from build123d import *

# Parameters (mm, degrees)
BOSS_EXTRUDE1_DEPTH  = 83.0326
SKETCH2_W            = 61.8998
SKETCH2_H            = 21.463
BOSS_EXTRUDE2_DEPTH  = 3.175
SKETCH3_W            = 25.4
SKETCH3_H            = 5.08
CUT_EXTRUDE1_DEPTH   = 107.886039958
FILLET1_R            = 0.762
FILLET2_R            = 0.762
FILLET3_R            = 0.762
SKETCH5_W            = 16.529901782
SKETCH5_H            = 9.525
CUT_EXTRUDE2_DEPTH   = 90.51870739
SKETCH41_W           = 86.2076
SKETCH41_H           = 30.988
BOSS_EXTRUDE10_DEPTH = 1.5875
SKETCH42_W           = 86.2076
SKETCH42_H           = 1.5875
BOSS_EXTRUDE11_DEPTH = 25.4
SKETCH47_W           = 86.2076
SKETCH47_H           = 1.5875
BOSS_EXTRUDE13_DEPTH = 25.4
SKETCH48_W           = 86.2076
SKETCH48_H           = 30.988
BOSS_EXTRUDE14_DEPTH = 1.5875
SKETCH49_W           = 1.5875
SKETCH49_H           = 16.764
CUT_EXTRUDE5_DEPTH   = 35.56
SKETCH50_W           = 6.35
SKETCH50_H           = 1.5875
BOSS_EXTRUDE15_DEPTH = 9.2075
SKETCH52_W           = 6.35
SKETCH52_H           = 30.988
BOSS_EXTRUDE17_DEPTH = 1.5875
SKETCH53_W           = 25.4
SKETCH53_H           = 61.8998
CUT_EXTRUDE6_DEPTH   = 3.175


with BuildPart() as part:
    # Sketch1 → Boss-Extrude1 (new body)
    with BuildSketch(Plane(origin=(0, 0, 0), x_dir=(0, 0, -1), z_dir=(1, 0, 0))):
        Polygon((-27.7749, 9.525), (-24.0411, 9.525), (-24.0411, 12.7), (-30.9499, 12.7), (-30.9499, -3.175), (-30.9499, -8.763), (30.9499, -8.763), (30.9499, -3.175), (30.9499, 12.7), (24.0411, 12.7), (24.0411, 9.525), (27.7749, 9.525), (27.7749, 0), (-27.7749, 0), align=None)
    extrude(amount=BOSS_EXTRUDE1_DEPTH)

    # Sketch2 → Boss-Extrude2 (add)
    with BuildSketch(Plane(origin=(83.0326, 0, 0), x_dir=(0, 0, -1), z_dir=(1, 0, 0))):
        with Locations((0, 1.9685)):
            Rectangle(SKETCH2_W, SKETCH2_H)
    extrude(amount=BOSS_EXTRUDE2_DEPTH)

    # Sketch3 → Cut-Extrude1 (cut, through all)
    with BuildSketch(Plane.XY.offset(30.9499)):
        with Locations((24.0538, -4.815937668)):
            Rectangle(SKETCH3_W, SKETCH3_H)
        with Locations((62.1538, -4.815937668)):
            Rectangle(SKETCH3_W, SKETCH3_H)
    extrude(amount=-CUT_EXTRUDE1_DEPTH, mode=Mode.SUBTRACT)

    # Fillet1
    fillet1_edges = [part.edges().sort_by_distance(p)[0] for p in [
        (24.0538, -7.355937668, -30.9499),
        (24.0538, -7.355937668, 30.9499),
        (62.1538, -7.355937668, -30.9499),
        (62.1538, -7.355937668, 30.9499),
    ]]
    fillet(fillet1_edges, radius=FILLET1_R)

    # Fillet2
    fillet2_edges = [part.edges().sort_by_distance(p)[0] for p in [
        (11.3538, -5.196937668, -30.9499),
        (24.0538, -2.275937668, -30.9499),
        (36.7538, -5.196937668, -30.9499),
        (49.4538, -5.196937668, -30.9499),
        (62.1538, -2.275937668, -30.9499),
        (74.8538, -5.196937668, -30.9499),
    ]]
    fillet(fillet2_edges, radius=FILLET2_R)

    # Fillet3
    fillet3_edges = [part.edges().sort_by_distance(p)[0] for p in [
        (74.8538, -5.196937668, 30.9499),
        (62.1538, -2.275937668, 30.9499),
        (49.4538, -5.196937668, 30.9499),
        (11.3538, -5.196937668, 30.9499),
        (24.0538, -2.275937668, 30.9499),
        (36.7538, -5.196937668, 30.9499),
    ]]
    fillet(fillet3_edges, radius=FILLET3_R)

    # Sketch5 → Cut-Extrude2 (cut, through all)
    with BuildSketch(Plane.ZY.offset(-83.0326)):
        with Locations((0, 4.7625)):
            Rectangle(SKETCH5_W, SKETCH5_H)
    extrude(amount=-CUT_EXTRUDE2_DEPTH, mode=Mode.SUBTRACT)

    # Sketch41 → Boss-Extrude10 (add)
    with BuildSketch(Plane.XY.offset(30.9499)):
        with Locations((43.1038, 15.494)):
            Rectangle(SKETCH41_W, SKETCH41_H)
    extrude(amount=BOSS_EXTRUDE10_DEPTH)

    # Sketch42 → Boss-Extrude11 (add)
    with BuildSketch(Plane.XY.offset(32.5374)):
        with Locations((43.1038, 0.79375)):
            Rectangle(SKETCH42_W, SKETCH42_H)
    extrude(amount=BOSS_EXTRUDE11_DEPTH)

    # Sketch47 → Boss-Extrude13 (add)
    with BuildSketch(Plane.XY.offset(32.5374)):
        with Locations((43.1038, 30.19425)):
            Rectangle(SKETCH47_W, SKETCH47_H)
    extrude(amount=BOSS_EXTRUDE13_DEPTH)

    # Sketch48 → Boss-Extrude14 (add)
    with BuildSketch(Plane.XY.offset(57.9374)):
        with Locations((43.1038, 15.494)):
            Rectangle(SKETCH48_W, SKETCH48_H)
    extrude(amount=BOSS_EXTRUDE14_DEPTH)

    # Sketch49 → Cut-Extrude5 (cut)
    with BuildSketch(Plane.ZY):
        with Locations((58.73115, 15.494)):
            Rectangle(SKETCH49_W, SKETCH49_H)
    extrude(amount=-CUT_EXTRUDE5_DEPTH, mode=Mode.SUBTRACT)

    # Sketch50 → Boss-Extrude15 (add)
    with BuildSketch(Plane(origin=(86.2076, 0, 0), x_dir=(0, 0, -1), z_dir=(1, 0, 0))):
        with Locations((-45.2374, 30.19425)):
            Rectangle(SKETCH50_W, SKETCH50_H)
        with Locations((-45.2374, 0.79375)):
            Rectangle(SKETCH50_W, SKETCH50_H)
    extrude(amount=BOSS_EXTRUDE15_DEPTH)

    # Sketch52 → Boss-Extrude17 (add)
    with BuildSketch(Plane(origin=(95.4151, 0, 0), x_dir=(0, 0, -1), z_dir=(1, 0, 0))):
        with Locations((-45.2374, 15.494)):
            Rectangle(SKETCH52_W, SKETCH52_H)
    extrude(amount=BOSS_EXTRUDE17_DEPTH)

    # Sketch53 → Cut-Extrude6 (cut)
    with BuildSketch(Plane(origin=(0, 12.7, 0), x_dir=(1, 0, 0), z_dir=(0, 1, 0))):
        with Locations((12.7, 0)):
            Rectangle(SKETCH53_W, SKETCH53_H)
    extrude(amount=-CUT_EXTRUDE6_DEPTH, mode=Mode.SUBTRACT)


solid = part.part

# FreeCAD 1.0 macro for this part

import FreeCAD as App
import Part
import Sketcher

V = App.Vector
Q = App.Units.Quantity


def edges_at(feature, points):
    """Names of the edges that pass closest to the given points."""
    edges = feature.Shape.Edges
    near = lambda p: min(range(len(edges)), key=lambda i: edges[i].distToShape(Part.Vertex(*p))[0])
    return sorted({f"Edge{near(p) + 1}" for p in points})


def add_polygon(sketch, points):
    """Adds a closed chain of lines whose ends are joined by coincident constraints."""
    first, n = sketch.GeometryCount, len(points)
    for a, b in zip(points, points[1:] + points[:1]):
        sketch.addGeometry(Part.LineSegment(App.Vector(*a, 0), App.Vector(*b, 0)), False)
    for i in range(n):
        sketch.addConstraint(Sketcher.Constraint("Coincident", first + i, 2, first + (i + 1) % n, 1))

doc = App.newDocument("Part")
body = doc.addObject("PartDesign::Body", "Body")

# Sketch on YZ plane
sketch1 = doc.addObject("Sketcher::SketchObject", "Sketch")
body.addObject(sketch1)
sketch1.AttachmentSupport = (doc.YZ_Plane, [""])
sketch1.MapMode = "FlatFace"
add_polygon(sketch1, [(9.5, 27.8), (9.5, 24), (12.7, 24), (12.7, 30.9), (-8.8, 30.9), (-8.8, -30.9), (12.7, -30.9), (12.7, -24), (9.5, -24), (9.5, -27.8), (0, -27.8), (0, 27.8)])  # lines 0-11
sketch1.addConstraint(Sketcher.Constraint("Vertical", 0))
sketch1.addConstraint(Sketcher.Constraint("Horizontal", 1))
sketch1.addConstraint(Sketcher.Constraint("Vertical", 2))
sketch1.addConstraint(Sketcher.Constraint("Horizontal", 3))
sketch1.addConstraint(Sketcher.Constraint("Vertical", 4))
sketch1.addConstraint(Sketcher.Constraint("Horizontal", 5))
sketch1.addConstraint(Sketcher.Constraint("Vertical", 6))
sketch1.addConstraint(Sketcher.Constraint("Horizontal", 7))
sketch1.addConstraint(Sketcher.Constraint("Vertical", 8))
sketch1.addConstraint(Sketcher.Constraint("Horizontal", 9))
sketch1.addConstraint(Sketcher.Constraint("Vertical", 10))
sketch1.addConstraint(Sketcher.Constraint("Horizontal", 11))
sketch1.addConstraint(Sketcher.Constraint("Symmetric", 9, 2, 10, 2, -1, 1))
sketch1.addConstraint(Sketcher.Constraint("Symmetric", 2, 2, 5, 2, -1))
sketch1.addConstraint(Sketcher.Constraint("Symmetric", 0, 2, 7, 2, -1))
sketch1.addConstraint(Sketcher.Constraint("DistanceX", -1, 1, 1, 2, Q("0.5 in")))
sketch1.addConstraint(Sketcher.Constraint("DistanceX", 1, 1, 1, 2, Q("0.125 in")))
sketch1.addConstraint(Sketcher.Constraint("DistanceX", 3, 2, 3, 1, Q("0.845 in")))
sketch1.addConstraint(Sketcher.Constraint("DistanceY", 0, 2, 0, 1, Q("0.147 in")))
sketch1.addConstraint(Sketcher.Constraint("DistanceY", 2, 1, 2, 2, Q("0.272 in")))
sketch1.addConstraint(Sketcher.Constraint("DistanceY", 4, 2, 4, 1, Q("2.437 in")))
pad1 = doc.addObject("PartDesign::Pad", "Pad")
body.addObject(pad1)
pad1.Profile = sketch1
pad1.Length = Q("3.269 in")

# Sketch on YZ plane
sketch2 = doc.addObject("Sketcher::SketchObject", "Sketch001")
body.addObject(sketch2)
sketch2.AttachmentSupport = (doc.YZ_Plane, [""])
sketch2.MapMode = "FlatFace"
sketch2.AttachmentOffset = App.Placement(V(0, 0, 3.269 * 25.4), App.Rotation())
add_polygon(sketch2, [(13, 31), (-9, 31), (-9, -31), (13, -31)])  # lines 0-3
sketch2.addConstraint(Sketcher.Constraint("Horizontal", 0))
sketch2.addConstraint(Sketcher.Constraint("Vertical", 1))
sketch2.addConstraint(Sketcher.Constraint("Horizontal", 2))
sketch2.addConstraint(Sketcher.Constraint("Vertical", 3))
sketch2.addConstraint(Sketcher.Constraint("DistanceX", -1, 1, 2, 2, Q("0.5 in")))
sketch2.addConstraint(Sketcher.Constraint("DistanceX", 0, 2, 0, 1, Q("0.845 in")))
sketch2.addConstraint(Sketcher.Constraint("DistanceY", 1, 2, 1, 1, Q("2.437 in")))
sketch2.addConstraint(Sketcher.Constraint("DistanceY", -1, 1, 0, 2, Q("1.2185 in")))
pad2 = doc.addObject("PartDesign::Pad", "Pad001")
body.addObject(pad2)
pad2.Profile = sketch2
pad2.Length = Q("0.125 in")

# Sketch on XY plane
sketch3 = doc.addObject("Sketcher::SketchObject", "Sketch002")
body.addObject(sketch3)
sketch3.AttachmentSupport = (doc.XY_Plane, [""])
sketch3.MapMode = "FlatFace"
sketch3.AttachmentOffset = App.Placement(V(0, 0, 1.2185 * 25.4), App.Rotation())
add_polygon(sketch3, [(11, -2), (11, -7), (37, -7), (37, -2)])  # lines 0-3
add_polygon(sketch3, [(49, -2), (49, -7), (75, -7), (75, -2)])  # lines 4-7
sketch3.addConstraint(Sketcher.Constraint("Vertical", 0))
sketch3.addConstraint(Sketcher.Constraint("Horizontal", 1))
sketch3.addConstraint(Sketcher.Constraint("Vertical", 2))
sketch3.addConstraint(Sketcher.Constraint("Horizontal", 3))
sketch3.addConstraint(Sketcher.Constraint("Vertical", 4))
sketch3.addConstraint(Sketcher.Constraint("Horizontal", 5))
sketch3.addConstraint(Sketcher.Constraint("Vertical", 6))
sketch3.addConstraint(Sketcher.Constraint("Horizontal", 7))
sketch3.addConstraint(Sketcher.Constraint("Horizontal", 1, 2, 4, 2))
sketch3.addConstraint(Sketcher.Constraint("Horizontal", 3, 2, 6, 2))
sketch3.addConstraint(Sketcher.Constraint("Equal", 3, 5))
sketch3.addConstraint(Sketcher.Constraint("DistanceX", 1, 1, 1, 2, Q("1 in")))
sketch3.addConstraint(Sketcher.Constraint("DistanceY", 0, 2, 0, 1, Q("0.2 in")))
sketch3.addConstraint(Sketcher.Constraint("DistanceX", 1, 2, 4, 2, Q("0.5 in")))
sketch3.addConstraint(Sketcher.Constraint("DistanceX", -1, 1, 0, 2, Q("0.447 in")))
sketch3.addConstraint(Sketcher.Constraint("DistanceY", 0, 2, -1, 1, 7.355938))
pocket1 = doc.addObject("PartDesign::Pocket", "Pocket")
body.addObject(pocket1)
pocket1.Profile = sketch3
pocket1.Type = "ThroughAll"
doc.recompute()

fillet = doc.addObject("PartDesign::Fillet", "Fillet")
body.addObject(fillet)
fillet.Base = (pocket1, edges_at(pocket1, [
    (24.054, -7.356, -30.95),
    (24.054, -7.356, 30.95),
    (62.154, -7.356, -30.95),
    (62.154, -7.356, 30.95),
]))
fillet.Radius = Q("0.03 in")
doc.recompute()

fillet2 = doc.addObject("PartDesign::Fillet", "Fillet001")
body.addObject(fillet2)
fillet2.Base = (fillet, edges_at(fillet, [
    (11.354, -5.197, -30.95),
    (24.054, -2.276, -30.95),
    (36.754, -5.197, -30.95),
    (49.454, -5.197, -30.95),
    (62.154, -2.276, -30.95),
    (74.854, -5.197, -30.95),
]))
fillet2.Radius = Q("0.03 in")
doc.recompute()

fillet3 = doc.addObject("PartDesign::Fillet", "Fillet002")
body.addObject(fillet3)
fillet3.Base = (fillet2, edges_at(fillet2, [
    (74.854, -5.197, 30.95),
    (62.154, -2.276, 30.95),
    (49.454, -5.197, 30.95),
    (11.354, -5.197, 30.95),
    (24.054, -2.276, 30.95),
    (36.754, -5.197, 30.95),
]))
fillet3.Radius = Q("0.03 in")

# Sketch on YZ plane
sketch4 = doc.addObject("Sketcher::SketchObject", "Sketch003")
body.addObject(sketch4)
sketch4.AttachmentSupport = (doc.YZ_Plane, [""])
sketch4.MapMode = "FlatFace"
sketch4.AttachmentOffset = App.Placement(V(0, 0, 3.269 * 25.4), App.Rotation())
add_polygon(sketch4, [(10, -8), (0, -8), (0, 8), (10, 8)])  # lines 0-3
sketch4.addConstraint(Sketcher.Constraint("Horizontal", 0))
sketch4.addConstraint(Sketcher.Constraint("Vertical", 1))
sketch4.addConstraint(Sketcher.Constraint("Horizontal", 2))
sketch4.addConstraint(Sketcher.Constraint("Vertical", 3))
sketch4.addConstraint(Sketcher.Constraint("Symmetric", 0, 2, 1, 2, -1, 1))
sketch4.addConstraint(Sketcher.Constraint("DistanceX", 0, 2, 0, 1, Q("0.375 in")))
sketch4.addConstraint(Sketcher.Constraint("DistanceY", 1, 1, 1, 2, 16.529902))
pocket2 = doc.addObject("PartDesign::Pocket", "Pocket001")
body.addObject(pocket2)
pocket2.Profile = sketch4
pocket2.Type = "ThroughAll"
pocket2.Reversed = True

# Sketch on XY plane
sketch5 = doc.addObject("Sketcher::SketchObject", "Sketch004")
body.addObject(sketch5)
sketch5.AttachmentSupport = (doc.XY_Plane, [""])
sketch5.MapMode = "FlatFace"
sketch5.AttachmentOffset = App.Placement(V(0, 0, 1.2185 * 25.4), App.Rotation())
add_polygon(sketch5, [(0, 31), (0, 0), (86, 0), (86, 31)])  # lines 0-3
sketch5.addConstraint(Sketcher.Constraint("Vertical", 0))
sketch5.addConstraint(Sketcher.Constraint("Horizontal", 1))
sketch5.addConstraint(Sketcher.Constraint("Vertical", 2))
sketch5.addConstraint(Sketcher.Constraint("Horizontal", 3))
sketch5.addConstraint(Sketcher.Constraint("Coincident", 0, 2, -1, 1))
sketch5.addConstraint(Sketcher.Constraint("DistanceY", 0, 2, 0, 1, Q("1.22 in")))
sketch5.addConstraint(Sketcher.Constraint("DistanceX", 1, 1, 1, 2, Q("3.394 in")))
pad3 = doc.addObject("PartDesign::Pad", "Pad002")
body.addObject(pad3)
pad3.Profile = sketch5
pad3.Length = Q("0.0625 in")

# Sketch on XY plane
sketch6 = doc.addObject("Sketcher::SketchObject", "Sketch005")
body.addObject(sketch6)
sketch6.AttachmentSupport = (doc.XY_Plane, [""])
sketch6.MapMode = "FlatFace"
sketch6.AttachmentOffset = App.Placement(V(0, 0, 1.281 * 25.4), App.Rotation())
add_polygon(sketch6, [(0, 1.6), (0, 0), (86.2, 0), (86.2, 1.6)])  # lines 0-3
sketch6.addConstraint(Sketcher.Constraint("Vertical", 0))
sketch6.addConstraint(Sketcher.Constraint("Horizontal", 1))
sketch6.addConstraint(Sketcher.Constraint("Vertical", 2))
sketch6.addConstraint(Sketcher.Constraint("Horizontal", 3))
sketch6.addConstraint(Sketcher.Constraint("Coincident", 0, 2, -1, 1))
sketch6.addConstraint(Sketcher.Constraint("DistanceX", 1, 1, 1, 2, Q("3.394 in")))
sketch6.addConstraint(Sketcher.Constraint("DistanceY", 0, 2, 0, 1, Q("0.0625 in")))
pad4 = doc.addObject("PartDesign::Pad", "Pad003")
body.addObject(pad4)
pad4.Profile = sketch6
pad4.Length = Q("1 in")

# Sketch on XY plane
sketch7 = doc.addObject("Sketcher::SketchObject", "Sketch006")
body.addObject(sketch7)
sketch7.AttachmentSupport = (doc.XY_Plane, [""])
sketch7.MapMode = "FlatFace"
sketch7.AttachmentOffset = App.Placement(V(0, 0, 1.281 * 25.4), App.Rotation())
add_polygon(sketch7, [(0, 31), (0, 29.4), (86.2, 29.4), (86.2, 31)])  # lines 0-3
sketch7.addConstraint(Sketcher.Constraint("Vertical", 0))
sketch7.addConstraint(Sketcher.Constraint("Horizontal", 1))
sketch7.addConstraint(Sketcher.Constraint("Vertical", 2))
sketch7.addConstraint(Sketcher.Constraint("Horizontal", 3))
sketch7.addConstraint(Sketcher.Constraint("PointOnObject", 0, 2, -2))
sketch7.addConstraint(Sketcher.Constraint("DistanceX", 1, 1, 1, 2, Q("3.394 in")))
sketch7.addConstraint(Sketcher.Constraint("DistanceY", 0, 2, 0, 1, Q("0.0625 in")))
sketch7.addConstraint(Sketcher.Constraint("DistanceY", -1, 1, 2, 2, Q("1.22 in")))
pad5 = doc.addObject("PartDesign::Pad", "Pad004")
body.addObject(pad5)
pad5.Profile = sketch7
pad5.Length = Q("1 in")

# Sketch on XY plane
sketch8 = doc.addObject("Sketcher::SketchObject", "Sketch007")
body.addObject(sketch8)
sketch8.AttachmentSupport = (doc.XY_Plane, [""])
sketch8.MapMode = "FlatFace"
sketch8.AttachmentOffset = App.Placement(V(0, 0, 2.281 * 25.4), App.Rotation())
add_polygon(sketch8, [(0, 31), (0, 0), (86, 0), (86, 31)])  # lines 0-3
sketch8.addConstraint(Sketcher.Constraint("Vertical", 0))
sketch8.addConstraint(Sketcher.Constraint("Horizontal", 1))
sketch8.addConstraint(Sketcher.Constraint("Vertical", 2))
sketch8.addConstraint(Sketcher.Constraint("Horizontal", 3))
sketch8.addConstraint(Sketcher.Constraint("Coincident", 0, 2, -1, 1))
sketch8.addConstraint(Sketcher.Constraint("DistanceY", 0, 2, 0, 1, Q("1.22 in")))
sketch8.addConstraint(Sketcher.Constraint("DistanceX", 1, 1, 1, 2, Q("3.394 in")))
pad6 = doc.addObject("PartDesign::Pad", "Pad005")
body.addObject(pad6)
pad6.Profile = sketch8
pad6.Length = Q("0.0625 in")

# Sketch on YZ plane
sketch9 = doc.addObject("Sketcher::SketchObject", "Sketch008")
body.addObject(sketch9)
sketch9.AttachmentSupport = (doc.YZ_Plane, [""])
sketch9.MapMode = "FlatFace"
add_polygon(sketch9, [(23.9, 57.9), (7.1, 57.9), (7.1, 59.5), (23.9, 59.5)])  # lines 0-3
sketch9.addConstraint(Sketcher.Constraint("Horizontal", 0))
sketch9.addConstraint(Sketcher.Constraint("Vertical", 1))
sketch9.addConstraint(Sketcher.Constraint("Horizontal", 2))
sketch9.addConstraint(Sketcher.Constraint("Vertical", 3))
sketch9.addConstraint(Sketcher.Constraint("DistanceX", 0, 2, 0, 1, Q("0.66 in")))
sketch9.addConstraint(Sketcher.Constraint("DistanceY", 1, 1, 1, 2, Q("0.0625 in")))
sketch9.addConstraint(Sketcher.Constraint("DistanceX", -1, 1, 0, 2, Q("0.28 in")))
sketch9.addConstraint(Sketcher.Constraint("DistanceY", -1, 1, 0, 2, Q("2.281 in")))
pocket3 = doc.addObject("PartDesign::Pocket", "Pocket002")
body.addObject(pocket3)
pocket3.Profile = sketch9
pocket3.Length = Q("1.4 in")
pocket3.Reversed = True

# Sketch on YZ plane
sketch10 = doc.addObject("Sketcher::SketchObject", "Sketch009")
body.addObject(sketch10)
sketch10.AttachmentSupport = (doc.YZ_Plane, [""])
sketch10.MapMode = "FlatFace"
sketch10.AttachmentOffset = App.Placement(V(0, 0, 3.394 * 25.4), App.Rotation())
add_polygon(sketch10, [(31, 48.4), (29.4, 48.4), (29.4, 42.1), (31, 42.1)])  # lines 0-3
add_polygon(sketch10, [(1.6, 48.4), (0, 48.4), (0, 42.1), (1.6, 42.1)])  # lines 4-7
sketch10.addConstraint(Sketcher.Constraint("Horizontal", 0))
sketch10.addConstraint(Sketcher.Constraint("Vertical", 1))
sketch10.addConstraint(Sketcher.Constraint("Horizontal", 2))
sketch10.addConstraint(Sketcher.Constraint("Vertical", 3))
sketch10.addConstraint(Sketcher.Constraint("Horizontal", 4))
sketch10.addConstraint(Sketcher.Constraint("Vertical", 5))
sketch10.addConstraint(Sketcher.Constraint("Horizontal", 6))
sketch10.addConstraint(Sketcher.Constraint("Vertical", 7))
sketch10.addConstraint(Sketcher.Constraint("PointOnObject", 4, 2, -2))
sketch10.addConstraint(Sketcher.Constraint("Horizontal", 3, 2, 4, 2))
sketch10.addConstraint(Sketcher.Constraint("Horizontal", 2, 2, 5, 2))
sketch10.addConstraint(Sketcher.Constraint("Equal", 2, 4))
sketch10.addConstraint(Sketcher.Constraint("DistanceY", 1, 2, 1, 1, Q("0.25 in")))
sketch10.addConstraint(Sketcher.Constraint("DistanceX", 0, 2, 0, 1, Q("0.0625 in")))
sketch10.addConstraint(Sketcher.Constraint("DistanceX", -1, 1, 2, 2, Q("1.22 in")))
sketch10.addConstraint(Sketcher.Constraint("DistanceY", -1, 1, 0, 2, Q("1.906 in")))
pad7 = doc.addObject("PartDesign::Pad", "Pad006")
body.addObject(pad7)
pad7.Profile = sketch10
pad7.Length = Q("0.3625 in")

# Sketch on YZ plane
sketch11 = doc.addObject("Sketcher::SketchObject", "Sketch010")
body.addObject(sketch11)
sketch11.AttachmentSupport = (doc.YZ_Plane, [""])
sketch11.MapMode = "FlatFace"
sketch11.AttachmentOffset = App.Placement(V(0, 0, 3.7565 * 25.4), App.Rotation())
add_polygon(sketch11, [(31, 48), (0, 48), (0, 42), (31, 42)])  # lines 0-3
sketch11.addConstraint(Sketcher.Constraint("Horizontal", 0))
sketch11.addConstraint(Sketcher.Constraint("Vertical", 1))
sketch11.addConstraint(Sketcher.Constraint("Horizontal", 2))
sketch11.addConstraint(Sketcher.Constraint("Vertical", 3))
sketch11.addConstraint(Sketcher.Constraint("PointOnObject", 0, 2, -2))
sketch11.addConstraint(Sketcher.Constraint("DistanceX", 0, 2, 0, 1, Q("1.22 in")))
sketch11.addConstraint(Sketcher.Constraint("DistanceY", 1, 2, 1, 1, Q("0.25 in")))
sketch11.addConstraint(Sketcher.Constraint("DistanceY", -1, 1, 0, 2, Q("1.906 in")))
pad8 = doc.addObject("PartDesign::Pad", "Pad007")
body.addObject(pad8)
pad8.Profile = sketch11
pad8.Length = Q("0.0625 in")

# Sketch on XZ plane
sketch12 = doc.addObject("Sketcher::SketchObject", "Sketch011")
body.addObject(sketch12)
sketch12.AttachmentSupport = (doc.XZ_Plane, [""])
sketch12.MapMode = "FlatFace"
sketch12.AttachmentOffset = App.Placement(V(0, 0, -0.5 * 25.4), App.Rotation())
add_polygon(sketch12, [(0, -31), (0, 31), (25, 31), (25, -31)])  # lines 0-3
sketch12.addConstraint(Sketcher.Constraint("Vertical", 0))
sketch12.addConstraint(Sketcher.Constraint("Horizontal", 1))
sketch12.addConstraint(Sketcher.Constraint("Vertical", 2))
sketch12.addConstraint(Sketcher.Constraint("Horizontal", 3))
sketch12.addConstraint(Sketcher.Constraint("Symmetric", 0, 2, 3, 2, -1, 1))
sketch12.addConstraint(Sketcher.Constraint("DistanceX", 1, 1, 1, 2, Q("1 in")))
sketch12.addConstraint(Sketcher.Constraint("DistanceY", 0, 1, 0, 2, Q("2.437 in")))
pocket4 = doc.addObject("PartDesign::Pocket", "Pocket003")
body.addObject(pocket4)
pocket4.Profile = sketch12
pocket4.Length = Q("0.125 in")
pocket4.Reversed = True

doc.recompute()
